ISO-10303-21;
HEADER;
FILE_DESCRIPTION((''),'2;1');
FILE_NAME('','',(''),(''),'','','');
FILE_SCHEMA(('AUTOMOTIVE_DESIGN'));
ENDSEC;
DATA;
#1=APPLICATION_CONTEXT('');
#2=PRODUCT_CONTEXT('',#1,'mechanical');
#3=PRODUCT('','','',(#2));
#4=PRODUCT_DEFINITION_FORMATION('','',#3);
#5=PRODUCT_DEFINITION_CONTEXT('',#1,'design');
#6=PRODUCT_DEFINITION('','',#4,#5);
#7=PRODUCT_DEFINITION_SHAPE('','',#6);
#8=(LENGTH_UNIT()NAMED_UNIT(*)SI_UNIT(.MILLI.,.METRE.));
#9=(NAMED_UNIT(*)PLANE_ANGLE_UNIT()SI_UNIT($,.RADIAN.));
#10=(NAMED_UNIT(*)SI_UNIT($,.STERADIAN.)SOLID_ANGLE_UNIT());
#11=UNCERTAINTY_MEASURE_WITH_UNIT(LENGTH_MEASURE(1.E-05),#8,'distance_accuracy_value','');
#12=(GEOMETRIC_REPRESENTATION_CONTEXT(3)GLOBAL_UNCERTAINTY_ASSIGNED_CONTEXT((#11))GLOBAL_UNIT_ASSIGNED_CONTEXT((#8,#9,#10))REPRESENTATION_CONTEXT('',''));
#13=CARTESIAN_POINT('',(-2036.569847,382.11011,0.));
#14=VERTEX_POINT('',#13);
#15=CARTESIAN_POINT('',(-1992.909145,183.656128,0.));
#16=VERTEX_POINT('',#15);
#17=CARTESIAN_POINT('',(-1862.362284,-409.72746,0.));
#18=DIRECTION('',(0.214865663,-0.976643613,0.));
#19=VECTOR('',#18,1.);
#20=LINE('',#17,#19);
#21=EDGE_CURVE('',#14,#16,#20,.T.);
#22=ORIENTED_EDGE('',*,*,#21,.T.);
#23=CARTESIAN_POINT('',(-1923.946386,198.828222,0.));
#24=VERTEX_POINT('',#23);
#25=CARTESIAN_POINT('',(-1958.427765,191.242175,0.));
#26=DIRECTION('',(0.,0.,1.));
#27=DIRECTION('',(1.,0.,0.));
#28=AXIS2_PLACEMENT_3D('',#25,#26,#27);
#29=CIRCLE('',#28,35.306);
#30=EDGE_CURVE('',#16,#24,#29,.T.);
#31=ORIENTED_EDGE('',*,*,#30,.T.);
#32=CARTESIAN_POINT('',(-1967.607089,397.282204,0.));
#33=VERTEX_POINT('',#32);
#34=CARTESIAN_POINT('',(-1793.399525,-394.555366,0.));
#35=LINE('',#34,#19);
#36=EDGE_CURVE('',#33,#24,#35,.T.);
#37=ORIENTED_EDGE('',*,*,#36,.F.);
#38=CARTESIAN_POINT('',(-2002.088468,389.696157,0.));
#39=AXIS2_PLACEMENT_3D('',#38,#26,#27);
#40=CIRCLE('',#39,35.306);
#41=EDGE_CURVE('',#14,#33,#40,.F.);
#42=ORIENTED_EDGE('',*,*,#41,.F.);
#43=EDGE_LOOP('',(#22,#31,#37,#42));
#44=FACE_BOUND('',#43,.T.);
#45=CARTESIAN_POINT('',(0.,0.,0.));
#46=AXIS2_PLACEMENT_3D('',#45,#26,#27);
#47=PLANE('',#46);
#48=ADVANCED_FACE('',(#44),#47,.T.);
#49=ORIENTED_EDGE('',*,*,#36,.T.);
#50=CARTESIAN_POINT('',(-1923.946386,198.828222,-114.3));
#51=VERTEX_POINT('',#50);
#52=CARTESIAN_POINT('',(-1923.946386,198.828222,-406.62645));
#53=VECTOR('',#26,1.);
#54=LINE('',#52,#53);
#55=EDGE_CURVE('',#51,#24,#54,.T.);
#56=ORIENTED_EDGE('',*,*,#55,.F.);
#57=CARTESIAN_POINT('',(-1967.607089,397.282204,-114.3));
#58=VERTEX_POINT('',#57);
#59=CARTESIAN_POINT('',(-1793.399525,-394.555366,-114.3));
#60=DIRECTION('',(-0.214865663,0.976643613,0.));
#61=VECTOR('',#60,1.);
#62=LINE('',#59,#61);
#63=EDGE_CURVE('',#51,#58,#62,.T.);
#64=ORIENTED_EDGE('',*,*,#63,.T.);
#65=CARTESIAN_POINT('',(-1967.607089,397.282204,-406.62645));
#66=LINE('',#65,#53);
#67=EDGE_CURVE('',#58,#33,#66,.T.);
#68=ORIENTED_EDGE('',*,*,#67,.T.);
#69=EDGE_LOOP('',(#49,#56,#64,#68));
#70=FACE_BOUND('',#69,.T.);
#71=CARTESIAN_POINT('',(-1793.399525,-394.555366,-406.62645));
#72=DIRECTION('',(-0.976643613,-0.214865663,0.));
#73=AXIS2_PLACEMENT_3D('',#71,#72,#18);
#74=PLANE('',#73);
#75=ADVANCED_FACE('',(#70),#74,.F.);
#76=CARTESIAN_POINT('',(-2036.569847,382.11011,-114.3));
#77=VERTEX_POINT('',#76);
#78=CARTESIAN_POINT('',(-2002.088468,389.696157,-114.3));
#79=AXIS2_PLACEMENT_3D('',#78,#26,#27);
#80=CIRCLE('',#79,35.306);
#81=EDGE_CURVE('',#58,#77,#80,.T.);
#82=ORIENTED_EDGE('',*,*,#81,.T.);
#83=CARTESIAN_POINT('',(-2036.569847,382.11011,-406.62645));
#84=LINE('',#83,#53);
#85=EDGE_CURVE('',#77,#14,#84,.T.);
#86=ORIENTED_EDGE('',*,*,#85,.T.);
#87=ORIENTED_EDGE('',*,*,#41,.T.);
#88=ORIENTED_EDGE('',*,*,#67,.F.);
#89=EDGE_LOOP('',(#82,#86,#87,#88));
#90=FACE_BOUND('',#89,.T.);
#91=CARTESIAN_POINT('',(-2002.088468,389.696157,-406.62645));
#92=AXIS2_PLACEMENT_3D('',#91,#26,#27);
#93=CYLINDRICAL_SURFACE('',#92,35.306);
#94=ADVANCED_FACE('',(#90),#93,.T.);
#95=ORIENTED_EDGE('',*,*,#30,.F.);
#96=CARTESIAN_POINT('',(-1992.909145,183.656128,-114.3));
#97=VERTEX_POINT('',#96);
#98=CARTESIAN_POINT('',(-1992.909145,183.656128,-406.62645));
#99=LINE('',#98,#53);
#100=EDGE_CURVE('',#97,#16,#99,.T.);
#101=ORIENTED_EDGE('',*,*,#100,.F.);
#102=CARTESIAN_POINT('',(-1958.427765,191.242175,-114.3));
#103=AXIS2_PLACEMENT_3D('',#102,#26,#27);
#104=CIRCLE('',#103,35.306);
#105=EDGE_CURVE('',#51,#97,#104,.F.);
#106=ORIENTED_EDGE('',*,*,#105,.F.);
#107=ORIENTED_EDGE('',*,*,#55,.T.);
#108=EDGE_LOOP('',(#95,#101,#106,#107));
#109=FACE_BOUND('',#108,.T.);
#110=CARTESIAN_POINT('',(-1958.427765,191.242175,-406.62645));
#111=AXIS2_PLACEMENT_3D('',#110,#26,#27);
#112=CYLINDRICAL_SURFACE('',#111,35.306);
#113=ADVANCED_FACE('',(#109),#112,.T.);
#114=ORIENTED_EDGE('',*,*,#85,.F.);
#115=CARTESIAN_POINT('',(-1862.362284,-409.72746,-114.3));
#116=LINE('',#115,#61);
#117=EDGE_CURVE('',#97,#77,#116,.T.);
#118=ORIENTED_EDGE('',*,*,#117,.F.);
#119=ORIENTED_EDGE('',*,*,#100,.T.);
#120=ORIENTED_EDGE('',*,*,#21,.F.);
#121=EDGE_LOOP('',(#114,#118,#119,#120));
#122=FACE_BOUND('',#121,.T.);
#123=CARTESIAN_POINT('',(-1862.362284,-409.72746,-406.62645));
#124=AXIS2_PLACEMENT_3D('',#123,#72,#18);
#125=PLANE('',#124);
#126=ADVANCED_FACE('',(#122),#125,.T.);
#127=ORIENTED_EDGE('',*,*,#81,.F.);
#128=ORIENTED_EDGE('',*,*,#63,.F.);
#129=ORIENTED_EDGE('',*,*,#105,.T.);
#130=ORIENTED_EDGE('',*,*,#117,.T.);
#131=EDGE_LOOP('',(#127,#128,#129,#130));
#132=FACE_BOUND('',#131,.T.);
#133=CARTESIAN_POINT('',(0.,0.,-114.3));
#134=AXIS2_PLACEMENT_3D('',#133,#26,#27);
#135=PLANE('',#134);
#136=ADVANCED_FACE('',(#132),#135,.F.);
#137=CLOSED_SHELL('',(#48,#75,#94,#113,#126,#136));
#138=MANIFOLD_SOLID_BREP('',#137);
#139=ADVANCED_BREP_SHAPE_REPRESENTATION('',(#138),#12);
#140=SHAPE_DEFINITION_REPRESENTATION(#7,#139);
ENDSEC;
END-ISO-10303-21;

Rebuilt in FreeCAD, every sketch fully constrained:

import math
import FreeCAD as App
import Part
import Sketcher
from FreeCAD import Vector
Q = App.Units.Quantity

doc = App.newDocument("Part")
params = doc.addObject("Spreadsheet::Sheet", "Params")
for row, (alias, value) in enumerate([
    ("sketch1_radius", "1.39 in"),
    ("sketch1_length", "8 in"),
    ("pad1_length", "4.5 in"),
], start=1):
    params.set(f"A{row}", alias)
    params.set(f"B{row}", "=" + value)
    params.setAlias(f"B{row}", alias)

body = doc.addObject("PartDesign::Body", "Body")

sketch1 = body.newObject("Sketcher::SketchObject", "Sketch")
sketch1.AttachmentSupport = (doc.getObject("XY_Plane"), [""])
sketch1.MapMode = "FlatFace"
sketch1.addGeometry([
    Part.LineSegment(Vector(-2037, 382, 0), Vector(-1993, 184, 0)),
    Part.ArcOfCircle(Part.Circle(Vector(-1958, 191, 0), Vector(0, 0, 1), 35), math.radians(-168), math.radians(12)),
    Part.LineSegment(Vector(-1924, 199, 0), Vector(-1968, 397, 0)),
    Part.ArcOfCircle(Part.Circle(Vector(-2002, 390, 0), Vector(0, 0, 1), 35), math.radians(12), math.radians(192)),
], False)
sketch1.addConstraint([
    Sketcher.Constraint("Tangent", 0, 2, 1, 1),
    Sketcher.Constraint("Tangent", 1, 2, 2, 1),
    Sketcher.Constraint("Tangent", 2, 2, 3, 1),
    Sketcher.Constraint("Tangent", 3, 2, 0, 1),
    Sketcher.Constraint("Equal", 1, 3),
    Sketcher.Constraint("Radius", 1, Q("1.39 in")),
    Sketcher.Constraint("Distance", 0, Q("8 in")),
    Sketcher.Constraint("DistanceX", 2, 2, -1, 1, Q("1967.607089 mm")),
    Sketcher.Constraint("DistanceY", -1, 1, 3, 2, Q("382.11011 mm")),
    Sketcher.Constraint("DistanceX", 0, 2, 1, 3, Q("34.481379 mm")),
])
sketch1.setExpression("Constraints[5]", "Params.sketch1_radius")
sketch1.setExpression("Constraints[6]", "Params.sketch1_length")
pad1 = body.newObject("PartDesign::Pad", "Pad")
pad1.Profile = sketch1
pad1.setExpression("Length", "Params.pad1_length")
pad1.Reversed = True

doc.recompute()
